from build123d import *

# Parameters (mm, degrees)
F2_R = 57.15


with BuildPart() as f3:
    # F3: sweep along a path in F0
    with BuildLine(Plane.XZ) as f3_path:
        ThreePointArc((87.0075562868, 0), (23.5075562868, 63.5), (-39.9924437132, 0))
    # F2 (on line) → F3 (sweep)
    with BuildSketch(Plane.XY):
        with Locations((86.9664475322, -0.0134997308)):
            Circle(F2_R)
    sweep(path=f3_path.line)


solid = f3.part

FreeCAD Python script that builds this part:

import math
import FreeCAD as App
import Part
import Sketcher
Q = App.Units.Quantity

doc = App.newDocument("Part")
body = doc.addObject("PartDesign::Body", "Body")

sketch1 = doc.addObject("Sketcher::SketchObject", "Sketch")
body.addObject(sketch1)
sketch1.AttachmentSupport = (doc.XY_Plane, [""])
sketch1.MapMode = "FlatFace"
sketch1.addGeometry(Part.Circle(App.Vector(86.966448, -0.0135, 0), App.Vector(0, 0, 1), 57.15), False)
sketch1.addConstraint([
    Sketcher.Constraint("Diameter", 0, Q("4.5 in")),
    Sketcher.Constraint("DistanceY", 0, 3, -1, 1, Q("0.0135 mm")),
    Sketcher.Constraint("DistanceX", -1, 1, 0, 3, Q("86.966448 mm")),
])

sketch2 = doc.addObject("Sketcher::SketchObject", "Sketch001")
body.addObject(sketch2)
sketch2.AttachmentSupport = (doc.XZ_Plane, [""])
sketch2.MapMode = "FlatFace"
sketch2.addGeometry(Part.ArcOfCircle(Part.Circle(App.Vector(23.507556, 0, 0), App.Vector(0, 0, 1), 63.5), math.radians(0), math.radians(180)), False)
sketch2.addConstraint([
    Sketcher.Constraint("PointOnObject", 0, 3, -1),
    Sketcher.Constraint("PointOnObject", 0, 1, -1),
    Sketcher.Constraint("PointOnObject", 0, 2, -1),
    Sketcher.Constraint("Radius", 0, Q("2.5 in")),
    Sketcher.Constraint("DistanceX", -1, 1, 0, 3, Q("23.507556 mm")),
])
doc.recompute()

additivepipe = doc.addObject("PartDesign::AdditivePipe", "AdditivePipe")
body.addObject(additivepipe)
additivepipe.Profile = sketch1
additivepipe.Spine = (sketch2, ["Edge1"])

doc.recompute()
